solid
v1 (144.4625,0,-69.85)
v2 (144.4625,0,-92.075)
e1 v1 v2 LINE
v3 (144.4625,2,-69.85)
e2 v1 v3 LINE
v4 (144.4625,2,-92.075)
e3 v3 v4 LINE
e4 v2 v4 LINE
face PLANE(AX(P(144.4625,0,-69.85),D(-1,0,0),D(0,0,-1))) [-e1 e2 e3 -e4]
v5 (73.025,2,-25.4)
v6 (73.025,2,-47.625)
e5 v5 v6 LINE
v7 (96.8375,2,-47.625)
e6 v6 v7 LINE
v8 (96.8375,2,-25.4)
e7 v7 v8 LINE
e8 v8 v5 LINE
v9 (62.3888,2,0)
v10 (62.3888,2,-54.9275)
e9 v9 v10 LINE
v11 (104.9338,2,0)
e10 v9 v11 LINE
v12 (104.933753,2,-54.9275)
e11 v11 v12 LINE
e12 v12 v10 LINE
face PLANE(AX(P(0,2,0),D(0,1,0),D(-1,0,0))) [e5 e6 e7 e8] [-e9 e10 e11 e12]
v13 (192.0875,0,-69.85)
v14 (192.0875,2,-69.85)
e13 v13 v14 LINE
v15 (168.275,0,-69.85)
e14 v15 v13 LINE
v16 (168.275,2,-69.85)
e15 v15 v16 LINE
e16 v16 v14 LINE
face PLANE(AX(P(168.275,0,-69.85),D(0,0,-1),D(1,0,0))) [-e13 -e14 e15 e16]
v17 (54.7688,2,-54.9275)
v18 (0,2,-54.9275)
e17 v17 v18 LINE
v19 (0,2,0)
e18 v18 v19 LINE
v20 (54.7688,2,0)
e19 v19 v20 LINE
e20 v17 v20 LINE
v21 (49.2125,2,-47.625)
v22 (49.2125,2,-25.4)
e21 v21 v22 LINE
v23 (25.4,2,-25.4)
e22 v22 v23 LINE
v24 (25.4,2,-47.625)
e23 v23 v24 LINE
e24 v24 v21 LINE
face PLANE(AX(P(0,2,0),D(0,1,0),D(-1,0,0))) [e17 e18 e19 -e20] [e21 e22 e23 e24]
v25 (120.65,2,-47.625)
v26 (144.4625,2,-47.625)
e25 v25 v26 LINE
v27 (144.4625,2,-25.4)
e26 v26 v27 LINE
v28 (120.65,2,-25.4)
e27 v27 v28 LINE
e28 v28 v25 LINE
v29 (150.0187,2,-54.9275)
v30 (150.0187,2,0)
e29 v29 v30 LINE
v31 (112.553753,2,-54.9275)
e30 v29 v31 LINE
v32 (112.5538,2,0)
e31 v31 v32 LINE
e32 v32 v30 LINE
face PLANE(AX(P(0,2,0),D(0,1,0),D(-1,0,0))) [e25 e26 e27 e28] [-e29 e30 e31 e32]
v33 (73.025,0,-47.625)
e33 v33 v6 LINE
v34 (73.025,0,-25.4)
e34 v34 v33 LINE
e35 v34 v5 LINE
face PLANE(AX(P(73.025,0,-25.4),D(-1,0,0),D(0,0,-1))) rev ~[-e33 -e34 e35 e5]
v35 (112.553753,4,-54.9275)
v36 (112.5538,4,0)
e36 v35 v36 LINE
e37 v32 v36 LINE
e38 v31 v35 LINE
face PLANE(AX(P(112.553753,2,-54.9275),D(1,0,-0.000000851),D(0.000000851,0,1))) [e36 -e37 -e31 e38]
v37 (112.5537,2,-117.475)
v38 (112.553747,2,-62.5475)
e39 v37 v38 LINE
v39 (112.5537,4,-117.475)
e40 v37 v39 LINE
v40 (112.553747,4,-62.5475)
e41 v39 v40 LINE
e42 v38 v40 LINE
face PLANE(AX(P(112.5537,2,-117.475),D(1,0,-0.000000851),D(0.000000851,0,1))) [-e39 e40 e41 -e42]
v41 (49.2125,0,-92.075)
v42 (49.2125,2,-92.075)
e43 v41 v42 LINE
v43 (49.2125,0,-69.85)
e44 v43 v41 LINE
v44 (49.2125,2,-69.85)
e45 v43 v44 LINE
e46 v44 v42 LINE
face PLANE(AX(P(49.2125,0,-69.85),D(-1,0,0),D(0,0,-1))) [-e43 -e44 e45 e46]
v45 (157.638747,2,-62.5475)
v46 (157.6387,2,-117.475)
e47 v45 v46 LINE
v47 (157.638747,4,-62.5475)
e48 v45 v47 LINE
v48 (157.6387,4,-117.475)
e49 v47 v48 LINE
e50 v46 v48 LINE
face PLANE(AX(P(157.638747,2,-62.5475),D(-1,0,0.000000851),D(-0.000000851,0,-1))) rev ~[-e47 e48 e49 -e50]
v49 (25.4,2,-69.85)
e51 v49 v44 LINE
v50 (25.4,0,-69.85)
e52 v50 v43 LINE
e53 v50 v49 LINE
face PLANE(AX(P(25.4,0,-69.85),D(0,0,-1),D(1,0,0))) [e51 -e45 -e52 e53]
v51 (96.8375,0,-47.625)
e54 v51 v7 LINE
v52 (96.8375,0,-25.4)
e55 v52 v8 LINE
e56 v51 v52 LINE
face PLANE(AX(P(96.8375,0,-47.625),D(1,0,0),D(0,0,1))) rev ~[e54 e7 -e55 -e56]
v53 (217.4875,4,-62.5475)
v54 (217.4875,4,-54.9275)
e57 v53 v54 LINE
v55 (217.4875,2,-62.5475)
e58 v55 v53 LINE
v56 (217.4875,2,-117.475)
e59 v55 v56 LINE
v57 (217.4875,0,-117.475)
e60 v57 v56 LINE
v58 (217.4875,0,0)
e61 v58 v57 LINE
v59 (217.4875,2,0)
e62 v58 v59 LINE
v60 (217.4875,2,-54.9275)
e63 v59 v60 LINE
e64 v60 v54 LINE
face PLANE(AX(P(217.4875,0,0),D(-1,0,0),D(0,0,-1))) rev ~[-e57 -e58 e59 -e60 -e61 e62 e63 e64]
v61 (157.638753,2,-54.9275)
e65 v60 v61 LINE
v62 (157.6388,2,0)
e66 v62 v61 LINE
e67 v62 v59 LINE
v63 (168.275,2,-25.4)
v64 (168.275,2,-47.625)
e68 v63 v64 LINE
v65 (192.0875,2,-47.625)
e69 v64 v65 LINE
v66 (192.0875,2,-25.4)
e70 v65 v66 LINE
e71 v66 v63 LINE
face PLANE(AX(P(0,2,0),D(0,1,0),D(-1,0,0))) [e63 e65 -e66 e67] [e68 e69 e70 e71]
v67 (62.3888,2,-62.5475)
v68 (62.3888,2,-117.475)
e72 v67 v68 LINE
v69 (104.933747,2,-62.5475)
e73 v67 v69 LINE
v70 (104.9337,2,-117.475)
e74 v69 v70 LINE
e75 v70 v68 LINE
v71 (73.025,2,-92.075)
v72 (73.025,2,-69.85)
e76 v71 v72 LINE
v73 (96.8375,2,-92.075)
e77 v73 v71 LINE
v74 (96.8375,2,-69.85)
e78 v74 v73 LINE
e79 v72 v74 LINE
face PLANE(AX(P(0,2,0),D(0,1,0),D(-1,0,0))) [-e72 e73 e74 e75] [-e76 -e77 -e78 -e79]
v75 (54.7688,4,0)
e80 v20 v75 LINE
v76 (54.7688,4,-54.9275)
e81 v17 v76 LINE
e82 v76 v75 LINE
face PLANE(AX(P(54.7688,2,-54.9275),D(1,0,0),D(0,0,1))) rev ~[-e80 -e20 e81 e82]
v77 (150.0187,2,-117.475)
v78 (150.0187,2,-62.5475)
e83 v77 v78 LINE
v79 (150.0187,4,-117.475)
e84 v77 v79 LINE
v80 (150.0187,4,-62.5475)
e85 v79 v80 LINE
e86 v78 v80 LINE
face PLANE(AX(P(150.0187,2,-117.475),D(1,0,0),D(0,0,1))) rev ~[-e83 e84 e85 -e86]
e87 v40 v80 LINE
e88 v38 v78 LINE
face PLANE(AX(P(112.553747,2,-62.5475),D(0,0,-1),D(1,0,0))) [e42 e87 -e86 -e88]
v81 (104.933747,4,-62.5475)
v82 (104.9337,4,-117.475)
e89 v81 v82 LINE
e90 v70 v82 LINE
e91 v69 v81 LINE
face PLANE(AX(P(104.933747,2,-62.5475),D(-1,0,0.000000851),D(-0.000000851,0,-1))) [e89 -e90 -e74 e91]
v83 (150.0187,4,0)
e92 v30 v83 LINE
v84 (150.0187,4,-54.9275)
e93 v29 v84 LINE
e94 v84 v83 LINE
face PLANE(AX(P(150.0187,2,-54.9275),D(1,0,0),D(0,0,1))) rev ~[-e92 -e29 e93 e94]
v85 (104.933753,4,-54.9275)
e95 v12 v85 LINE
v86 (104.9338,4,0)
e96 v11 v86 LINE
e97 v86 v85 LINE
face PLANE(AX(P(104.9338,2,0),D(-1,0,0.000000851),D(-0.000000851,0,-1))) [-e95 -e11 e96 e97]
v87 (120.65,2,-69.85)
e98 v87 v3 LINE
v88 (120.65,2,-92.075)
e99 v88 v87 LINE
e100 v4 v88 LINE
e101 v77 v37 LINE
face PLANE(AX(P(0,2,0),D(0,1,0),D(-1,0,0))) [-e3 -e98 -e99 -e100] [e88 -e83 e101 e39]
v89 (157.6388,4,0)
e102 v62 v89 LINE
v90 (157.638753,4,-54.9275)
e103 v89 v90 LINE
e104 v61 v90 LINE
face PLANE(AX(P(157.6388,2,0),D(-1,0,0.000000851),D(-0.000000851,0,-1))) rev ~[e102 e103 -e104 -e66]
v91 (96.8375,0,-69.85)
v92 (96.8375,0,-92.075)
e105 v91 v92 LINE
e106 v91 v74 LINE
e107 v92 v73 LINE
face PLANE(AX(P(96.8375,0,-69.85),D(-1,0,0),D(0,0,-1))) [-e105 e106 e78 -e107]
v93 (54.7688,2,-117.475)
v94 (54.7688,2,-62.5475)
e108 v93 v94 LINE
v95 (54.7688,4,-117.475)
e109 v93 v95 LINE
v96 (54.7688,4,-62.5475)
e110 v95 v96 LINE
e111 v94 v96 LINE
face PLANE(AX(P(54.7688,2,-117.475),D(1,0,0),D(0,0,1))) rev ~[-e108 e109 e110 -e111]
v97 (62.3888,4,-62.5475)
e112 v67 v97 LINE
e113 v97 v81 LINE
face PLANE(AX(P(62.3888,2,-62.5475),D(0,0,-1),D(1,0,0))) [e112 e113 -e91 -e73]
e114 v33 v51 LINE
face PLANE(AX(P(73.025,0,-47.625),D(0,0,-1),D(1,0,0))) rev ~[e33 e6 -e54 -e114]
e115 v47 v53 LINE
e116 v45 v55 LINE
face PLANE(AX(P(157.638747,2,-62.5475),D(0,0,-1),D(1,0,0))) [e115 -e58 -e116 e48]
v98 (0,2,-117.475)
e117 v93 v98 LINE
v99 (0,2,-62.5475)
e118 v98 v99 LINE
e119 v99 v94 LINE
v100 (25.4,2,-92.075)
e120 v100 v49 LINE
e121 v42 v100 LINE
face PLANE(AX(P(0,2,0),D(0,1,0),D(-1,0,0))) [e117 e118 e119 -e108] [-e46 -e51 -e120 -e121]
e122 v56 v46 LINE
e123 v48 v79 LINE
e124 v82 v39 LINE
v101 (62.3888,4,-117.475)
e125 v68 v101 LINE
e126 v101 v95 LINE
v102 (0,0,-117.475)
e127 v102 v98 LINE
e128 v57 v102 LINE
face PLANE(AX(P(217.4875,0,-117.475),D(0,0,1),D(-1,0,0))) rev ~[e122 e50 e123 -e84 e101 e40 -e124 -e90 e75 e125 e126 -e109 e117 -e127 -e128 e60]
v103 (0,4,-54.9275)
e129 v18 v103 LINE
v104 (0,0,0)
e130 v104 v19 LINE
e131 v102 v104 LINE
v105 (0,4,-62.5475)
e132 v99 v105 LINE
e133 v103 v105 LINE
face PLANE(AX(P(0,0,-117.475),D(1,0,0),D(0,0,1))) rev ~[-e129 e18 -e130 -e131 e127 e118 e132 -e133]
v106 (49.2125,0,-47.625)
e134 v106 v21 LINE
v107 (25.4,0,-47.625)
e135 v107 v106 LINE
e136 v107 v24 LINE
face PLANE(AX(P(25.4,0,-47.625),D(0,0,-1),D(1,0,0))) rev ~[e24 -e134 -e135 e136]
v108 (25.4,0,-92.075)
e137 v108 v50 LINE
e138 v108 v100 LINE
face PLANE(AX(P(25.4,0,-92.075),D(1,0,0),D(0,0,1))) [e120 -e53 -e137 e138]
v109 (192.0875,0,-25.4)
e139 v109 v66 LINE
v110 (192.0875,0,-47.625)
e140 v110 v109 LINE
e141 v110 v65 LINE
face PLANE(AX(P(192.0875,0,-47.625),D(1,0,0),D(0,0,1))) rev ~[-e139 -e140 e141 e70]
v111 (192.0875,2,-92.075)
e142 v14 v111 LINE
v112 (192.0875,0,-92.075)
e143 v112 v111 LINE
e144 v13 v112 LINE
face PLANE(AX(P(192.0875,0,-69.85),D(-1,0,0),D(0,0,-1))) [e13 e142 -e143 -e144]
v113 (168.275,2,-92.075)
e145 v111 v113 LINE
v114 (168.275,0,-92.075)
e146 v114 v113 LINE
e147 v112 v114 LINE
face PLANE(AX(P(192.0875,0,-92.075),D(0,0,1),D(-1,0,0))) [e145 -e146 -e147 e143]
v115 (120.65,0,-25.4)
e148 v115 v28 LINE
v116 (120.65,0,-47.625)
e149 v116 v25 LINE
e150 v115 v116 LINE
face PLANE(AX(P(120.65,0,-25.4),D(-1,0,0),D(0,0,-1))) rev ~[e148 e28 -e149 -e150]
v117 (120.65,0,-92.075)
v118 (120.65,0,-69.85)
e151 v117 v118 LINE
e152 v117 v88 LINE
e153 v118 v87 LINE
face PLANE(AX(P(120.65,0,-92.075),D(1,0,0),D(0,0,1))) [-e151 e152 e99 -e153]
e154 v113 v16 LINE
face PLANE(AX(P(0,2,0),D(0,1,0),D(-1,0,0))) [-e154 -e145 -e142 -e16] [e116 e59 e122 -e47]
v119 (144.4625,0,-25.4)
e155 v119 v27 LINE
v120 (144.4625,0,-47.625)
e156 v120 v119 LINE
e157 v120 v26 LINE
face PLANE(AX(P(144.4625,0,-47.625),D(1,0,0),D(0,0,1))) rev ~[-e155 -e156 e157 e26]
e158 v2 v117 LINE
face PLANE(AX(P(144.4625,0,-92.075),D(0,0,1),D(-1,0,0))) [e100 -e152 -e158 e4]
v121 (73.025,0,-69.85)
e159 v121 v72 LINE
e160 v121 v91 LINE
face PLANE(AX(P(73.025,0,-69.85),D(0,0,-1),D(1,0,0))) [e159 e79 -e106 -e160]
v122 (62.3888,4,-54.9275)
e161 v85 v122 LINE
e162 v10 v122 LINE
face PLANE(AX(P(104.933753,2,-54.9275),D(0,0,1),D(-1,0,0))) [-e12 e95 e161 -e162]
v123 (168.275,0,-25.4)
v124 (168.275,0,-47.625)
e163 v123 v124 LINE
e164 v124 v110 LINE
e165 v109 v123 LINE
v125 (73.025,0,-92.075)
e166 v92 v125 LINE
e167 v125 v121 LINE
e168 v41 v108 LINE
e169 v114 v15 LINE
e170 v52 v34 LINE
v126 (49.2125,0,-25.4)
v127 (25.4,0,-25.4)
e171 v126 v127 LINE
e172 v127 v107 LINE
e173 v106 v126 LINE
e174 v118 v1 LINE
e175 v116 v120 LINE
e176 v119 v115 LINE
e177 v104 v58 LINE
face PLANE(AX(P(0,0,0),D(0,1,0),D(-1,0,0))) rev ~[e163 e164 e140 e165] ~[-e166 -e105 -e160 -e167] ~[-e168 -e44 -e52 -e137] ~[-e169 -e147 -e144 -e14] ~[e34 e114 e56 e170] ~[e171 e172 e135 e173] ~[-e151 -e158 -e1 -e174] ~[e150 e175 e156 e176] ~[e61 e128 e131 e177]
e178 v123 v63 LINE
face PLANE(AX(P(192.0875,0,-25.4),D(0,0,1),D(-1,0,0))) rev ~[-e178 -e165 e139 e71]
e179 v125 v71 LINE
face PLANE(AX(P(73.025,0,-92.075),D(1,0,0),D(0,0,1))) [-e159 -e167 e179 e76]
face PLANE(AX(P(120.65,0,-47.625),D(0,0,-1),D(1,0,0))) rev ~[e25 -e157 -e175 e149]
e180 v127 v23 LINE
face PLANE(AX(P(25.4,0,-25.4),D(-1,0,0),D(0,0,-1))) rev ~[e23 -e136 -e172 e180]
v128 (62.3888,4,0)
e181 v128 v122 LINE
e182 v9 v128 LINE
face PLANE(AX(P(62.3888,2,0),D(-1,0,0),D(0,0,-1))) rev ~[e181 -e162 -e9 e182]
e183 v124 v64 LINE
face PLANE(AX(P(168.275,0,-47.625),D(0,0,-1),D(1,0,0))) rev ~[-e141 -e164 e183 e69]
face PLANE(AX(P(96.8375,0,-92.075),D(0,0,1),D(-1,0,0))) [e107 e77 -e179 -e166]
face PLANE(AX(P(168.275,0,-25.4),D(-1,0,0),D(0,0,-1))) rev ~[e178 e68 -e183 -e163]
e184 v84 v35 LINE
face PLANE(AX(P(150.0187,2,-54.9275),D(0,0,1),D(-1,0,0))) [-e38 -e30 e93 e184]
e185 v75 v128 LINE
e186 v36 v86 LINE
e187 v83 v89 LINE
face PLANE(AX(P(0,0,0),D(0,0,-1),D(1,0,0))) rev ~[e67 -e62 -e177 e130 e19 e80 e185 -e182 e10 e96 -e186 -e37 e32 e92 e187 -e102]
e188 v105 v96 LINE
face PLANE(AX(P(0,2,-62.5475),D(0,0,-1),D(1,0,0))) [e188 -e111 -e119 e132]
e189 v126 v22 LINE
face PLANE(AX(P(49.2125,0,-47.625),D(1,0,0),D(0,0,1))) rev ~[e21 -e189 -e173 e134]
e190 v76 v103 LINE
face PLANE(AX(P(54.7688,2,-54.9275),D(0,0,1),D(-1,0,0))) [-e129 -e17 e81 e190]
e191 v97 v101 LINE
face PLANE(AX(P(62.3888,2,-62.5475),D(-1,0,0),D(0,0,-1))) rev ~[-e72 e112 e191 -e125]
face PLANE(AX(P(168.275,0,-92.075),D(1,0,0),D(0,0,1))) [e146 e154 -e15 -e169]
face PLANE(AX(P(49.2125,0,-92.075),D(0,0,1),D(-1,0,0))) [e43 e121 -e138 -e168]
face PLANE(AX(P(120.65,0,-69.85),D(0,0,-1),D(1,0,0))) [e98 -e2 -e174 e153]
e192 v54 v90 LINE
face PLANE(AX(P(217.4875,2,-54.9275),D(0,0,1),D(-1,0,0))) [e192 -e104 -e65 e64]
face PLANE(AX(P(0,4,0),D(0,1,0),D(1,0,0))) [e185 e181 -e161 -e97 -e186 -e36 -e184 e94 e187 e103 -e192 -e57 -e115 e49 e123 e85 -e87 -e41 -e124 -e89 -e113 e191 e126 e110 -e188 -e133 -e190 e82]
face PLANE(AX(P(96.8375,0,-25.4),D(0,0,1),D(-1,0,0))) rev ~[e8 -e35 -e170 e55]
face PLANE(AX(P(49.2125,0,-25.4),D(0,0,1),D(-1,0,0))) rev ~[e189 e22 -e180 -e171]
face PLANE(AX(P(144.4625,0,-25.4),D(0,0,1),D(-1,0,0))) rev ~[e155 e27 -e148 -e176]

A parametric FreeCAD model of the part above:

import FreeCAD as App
import Part
import Sketcher

V = App.Vector
Q = App.Units.Quantity


def add_polygon(sketch, points):
    """Adds a closed chain of lines whose ends are joined by coincident constraints."""
    first, n = sketch.GeometryCount, len(points)
    for a, b in zip(points, points[1:] + points[:1]):
        sketch.addGeometry(Part.LineSegment(App.Vector(*a, 0), App.Vector(*b, 0)), False)
    for i in range(n):
        sketch.addConstraint(Sketcher.Constraint("Coincident", first + i, 2, first + (i + 1) % n, 1))

doc = App.newDocument("Part")
body = doc.addObject("PartDesign::Body", "Body")

sketch1 = doc.addObject("Sketcher::SketchObject", "Sketch")
body.addObject(sketch1)
sketch1.AttachmentSupport = (doc.XZ_Plane, [""])
sketch1.MapMode = "FlatFace"
add_polygon(sketch1, [(0, -117), (0, 0), (217, 0), (217, -117)])
add_polygon(sketch1, [(168, -92), (192, -92), (192, -70), (168, -70)])
add_polygon(sketch1, [(121, -92), (144, -92), (144, -70), (121, -70)])
add_polygon(sketch1, [(73, -92), (97, -92), (97, -70), (73, -70)])
add_polygon(sketch1, [(25, -92), (49, -92), (49, -70), (25, -70)])
add_polygon(sketch1, [(168, -25), (168, -48), (192, -48), (192, -25)])
add_polygon(sketch1, [(121, -25), (121, -48), (144, -48), (144, -25)])
add_polygon(sketch1, [(73, -25), (73, -48), (97, -48), (97, -25)])
add_polygon(sketch1, [(25, -25), (25, -48), (49, -48), (49, -25)])
sketch1.addConstraint(Sketcher.Constraint("Vertical", 0))
sketch1.addConstraint(Sketcher.Constraint("Horizontal", 1))
sketch1.addConstraint(Sketcher.Constraint("Vertical", 2))
sketch1.addConstraint(Sketcher.Constraint("Horizontal", 3))
sketch1.addConstraint(Sketcher.Constraint("Horizontal", 4))
sketch1.addConstraint(Sketcher.Constraint("Vertical", 5))
sketch1.addConstraint(Sketcher.Constraint("Horizontal", 6))
sketch1.addConstraint(Sketcher.Constraint("Vertical", 7))
sketch1.addConstraint(Sketcher.Constraint("Horizontal", 8))
sketch1.addConstraint(Sketcher.Constraint("Vertical", 9))
sketch1.addConstraint(Sketcher.Constraint("Horizontal", 10))
sketch1.addConstraint(Sketcher.Constraint("Vertical", 11))
sketch1.addConstraint(Sketcher.Constraint("Horizontal", 12))
sketch1.addConstraint(Sketcher.Constraint("Vertical", 13))
sketch1.addConstraint(Sketcher.Constraint("Horizontal", 14))
sketch1.addConstraint(Sketcher.Constraint("Vertical", 15))
sketch1.addConstraint(Sketcher.Constraint("Horizontal", 16))
sketch1.addConstraint(Sketcher.Constraint("Vertical", 17))
sketch1.addConstraint(Sketcher.Constraint("Horizontal", 18))
sketch1.addConstraint(Sketcher.Constraint("Vertical", 19))
sketch1.addConstraint(Sketcher.Constraint("Vertical", 20))
sketch1.addConstraint(Sketcher.Constraint("Horizontal", 21))
sketch1.addConstraint(Sketcher.Constraint("Vertical", 22))
sketch1.addConstraint(Sketcher.Constraint("Horizontal", 23))
sketch1.addConstraint(Sketcher.Constraint("Vertical", 24))
sketch1.addConstraint(Sketcher.Constraint("Horizontal", 25))
sketch1.addConstraint(Sketcher.Constraint("Vertical", 26))
sketch1.addConstraint(Sketcher.Constraint("Horizontal", 27))
sketch1.addConstraint(Sketcher.Constraint("Vertical", 28))
sketch1.addConstraint(Sketcher.Constraint("Horizontal", 29))
sketch1.addConstraint(Sketcher.Constraint("Vertical", 30))
sketch1.addConstraint(Sketcher.Constraint("Horizontal", 31))
sketch1.addConstraint(Sketcher.Constraint("Vertical", 32))
sketch1.addConstraint(Sketcher.Constraint("Horizontal", 33))
sketch1.addConstraint(Sketcher.Constraint("Vertical", 34))
sketch1.addConstraint(Sketcher.Constraint("Horizontal", 35))
sketch1.addConstraint(Sketcher.Constraint("Coincident", 0, 2, -1, 1))
sketch1.addConstraint(Sketcher.Constraint("Horizontal", 7, 2, 8, 2))
sketch1.addConstraint(Sketcher.Constraint("Horizontal", 6, 2, 9, 2))
sketch1.addConstraint(Sketcher.Constraint("Horizontal", 11, 2, 12, 2))
sketch1.addConstraint(Sketcher.Constraint("Horizontal", 10, 2, 13, 2))
sketch1.addConstraint(Sketcher.Constraint("Horizontal", 15, 2, 16, 2))
sketch1.addConstraint(Sketcher.Constraint("Horizontal", 14, 2, 17, 2))
sketch1.addConstraint(Sketcher.Constraint("Horizontal", 21, 2, 24, 2))
sketch1.addConstraint(Sketcher.Constraint("Horizontal", 23, 2, 26, 2))
sketch1.addConstraint(Sketcher.Constraint("Horizontal", 25, 2, 28, 2))
sketch1.addConstraint(Sketcher.Constraint("Horizontal", 27, 2, 30, 2))
sketch1.addConstraint(Sketcher.Constraint("Horizontal", 29, 2, 32, 2))
sketch1.addConstraint(Sketcher.Constraint("Horizontal", 31, 2, 34, 2))
sketch1.addConstraint(Sketcher.Constraint("Vertical", 7, 2, 20, 2))
sketch1.addConstraint(Sketcher.Constraint("Vertical", 5, 2, 21, 2))
sketch1.addConstraint(Sketcher.Constraint("Vertical", 11, 2, 24, 2))
sketch1.addConstraint(Sketcher.Constraint("Vertical", 9, 2, 25, 2))
sketch1.addConstraint(Sketcher.Constraint("Vertical", 15, 2, 28, 2))
sketch1.addConstraint(Sketcher.Constraint("Vertical", 13, 2, 29, 2))
sketch1.addConstraint(Sketcher.Constraint("Vertical", 19, 2, 32, 2))
sketch1.addConstraint(Sketcher.Constraint("Vertical", 17, 2, 33, 2))
sketch1.addConstraint(Sketcher.Constraint("Equal", 6, 8))
sketch1.addConstraint(Sketcher.Constraint("Equal", 10, 12))
sketch1.addConstraint(Sketcher.Constraint("Equal", 14, 16))
sketch1.addConstraint(Sketcher.Constraint("Equal", 19, 20))
sketch1.addConstraint(Sketcher.Constraint("DistanceX", -1, 1, 18, 2, Q("1 in")))
sketch1.addConstraint(Sketcher.Constraint("DistanceY", 22, 2, -1, 1, Q("1 in")))
sketch1.addConstraint(Sketcher.Constraint("DistanceX", 4, 2, 2, 2, Q("1 in")))
sketch1.addConstraint(Sketcher.Constraint("DistanceY", 2, 2, 4, 2, Q("1 in")))
sketch1.addConstraint(Sketcher.Constraint("DistanceX", 4, 1, 4, 2, Q("0.9375 in")))
sketch1.addConstraint(Sketcher.Constraint("DistanceY", 5, 1, 5, 2, Q("0.875 in")))
sketch1.addConstraint(Sketcher.Constraint("DistanceY", 7, 2, 20, 2, Q("1.75 in")))
sketch1.addConstraint(Sketcher.Constraint("DistanceX", 8, 2, 7, 2, Q("0.9375 in")))
sketch1.addConstraint(Sketcher.Constraint("DistanceX", 12, 2, 11, 2, Q("0.9375 in")))
sketch1.addConstraint(Sketcher.Constraint("DistanceX", 16, 2, 15, 2, Q("0.9375 in")))
pad1 = doc.addObject("PartDesign::Pad", "Pad")
body.addObject(pad1)
pad1.Profile = sketch1
pad1.Length = 2
pad1.Reversed = True

sketch2 = doc.addObject("Sketcher::SketchObject", "Sketch001")
body.addObject(sketch2)
sketch2.AttachmentSupport = (doc.XZ_Plane, [""])
sketch2.MapMode = "FlatFace"
sketch2.AttachmentOffset = App.Placement(V(0, 0, -2), App.Rotation())
add_polygon(sketch2, [(55, -63), (0, -63), (0, -55), (55, -55), (55, 0), (62, 0), (62, -55), (105, -55), (105, 0), (113, 0), (113, -55), (150, -55), (150, 0), (158, 0), (158, -55), (217, -55), (217, -63), (158, -63), (158, -117), (150, -117), (150, -63), (113, -63), (113, -117), (105, -117), (105, -63), (62, -63), (62, -117), (55, -117)])
sketch2.addConstraint(Sketcher.Constraint("Horizontal", 0))
sketch2.addConstraint(Sketcher.Constraint("Vertical", 1))
sketch2.addConstraint(Sketcher.Constraint("Horizontal", 2))
sketch2.addConstraint(Sketcher.Constraint("Vertical", 3))
sketch2.addConstraint(Sketcher.Constraint("Horizontal", 4))
sketch2.addConstraint(Sketcher.Constraint("Vertical", 5))
sketch2.addConstraint(Sketcher.Constraint("Horizontal", 6))
sketch2.addConstraint(Sketcher.Constraint("Vertical", 7))
sketch2.addConstraint(Sketcher.Constraint("Horizontal", 8))
sketch2.addConstraint(Sketcher.Constraint("Vertical", 9))
sketch2.addConstraint(Sketcher.Constraint("Horizontal", 10))
sketch2.addConstraint(Sketcher.Constraint("Vertical", 11))
sketch2.addConstraint(Sketcher.Constraint("Horizontal", 12))
sketch2.addConstraint(Sketcher.Constraint("Vertical", 13))
sketch2.addConstraint(Sketcher.Constraint("Horizontal", 14))
sketch2.addConstraint(Sketcher.Constraint("Vertical", 15))
sketch2.addConstraint(Sketcher.Constraint("Horizontal", 16))
sketch2.addConstraint(Sketcher.Constraint("Vertical", 17))
sketch2.addConstraint(Sketcher.Constraint("Horizontal", 18))
sketch2.addConstraint(Sketcher.Constraint("Vertical", 19))
sketch2.addConstraint(Sketcher.Constraint("Horizontal", 20))
sketch2.addConstraint(Sketcher.Constraint("Vertical", 21))
sketch2.addConstraint(Sketcher.Constraint("Horizontal", 22))
sketch2.addConstraint(Sketcher.Constraint("Vertical", 23))
sketch2.addConstraint(Sketcher.Constraint("Horizontal", 24))
sketch2.addConstraint(Sketcher.Constraint("Vertical", 25))
sketch2.addConstraint(Sketcher.Constraint("Horizontal", 26))
sketch2.addConstraint(Sketcher.Constraint("Vertical", 27))
sketch2.addConstraint(Sketcher.Constraint("PointOnObject", 0, 2, -2))
sketch2.addConstraint(Sketcher.Constraint("PointOnObject", 3, 2, -1))
sketch2.addConstraint(Sketcher.Constraint("PointOnObject", 7, 2, -1))
sketch2.addConstraint(Sketcher.Constraint("PointOnObject", 11, 2, -1))
sketch2.addConstraint(Sketcher.Constraint("Horizontal", 2, 2, 5, 2))
sketch2.addConstraint(Sketcher.Constraint("Horizontal", 6, 2, 9, 2))
sketch2.addConstraint(Sketcher.Constraint("Horizontal", 10, 2, 13, 2))
sketch2.addConstraint(Sketcher.Constraint("Horizontal", 0, 2, 15, 2))
sketch2.addConstraint(Sketcher.Constraint("Horizontal", 16, 2, 19, 2))
sketch2.addConstraint(Sketcher.Constraint("Horizontal", 18, 2, 21, 2))
sketch2.addConstraint(Sketcher.Constraint("Horizontal", 20, 2, 23, 2))
sketch2.addConstraint(Sketcher.Constraint("Horizontal", 22, 2, 25, 2))
sketch2.addConstraint(Sketcher.Constraint("Vertical", 13, 2, 16, 2))
sketch2.addConstraint(Sketcher.Constraint("Vertical", 11, 2, 18, 2))
sketch2.addConstraint(Sketcher.Constraint("Vertical", 9, 2, 20, 2))
sketch2.addConstraint(Sketcher.Constraint("Vertical", 7, 2, 22, 2))
sketch2.addConstraint(Sketcher.Constraint("Vertical", 5, 2, 24, 2))
sketch2.addConstraint(Sketcher.Constraint("Vertical", 3, 2, 26, 2))
sketch2.addConstraint(Sketcher.Constraint("Equal", 4, 8))
sketch2.addConstraint(Sketcher.Constraint("Equal", 8, 12))
sketch2.addConstraint(Sketcher.Constraint("Equal", 26, 1))
sketch2.addConstraint(Sketcher.Constraint("Equal", 13, 17))
sketch2.addConstraint(Sketcher.Constraint("DistanceX", 4, 1, 4, 2, Q("0.3 in")))
sketch2.addConstraint(Sketcher.Constraint("DistanceX", 0, 2, 0, 1, Q("2.156252 in")))
sketch2.addConstraint(Sketcher.Constraint("DistanceX", 6, 1, 6, 2, Q("1.675 in")))
sketch2.addConstraint(Sketcher.Constraint("DistanceX", 10, 1, 10, 2, Q("1.475 in")))
sketch2.addConstraint(Sketcher.Constraint("DistanceY", 3, 1, 3, 2, Q("2.1625 in")))
sketch2.addConstraint(Sketcher.Constraint("DistanceX", -1, 1, 14, 2, Q("8.5625 in")))
pad2 = doc.addObject("PartDesign::Pad", "Pad001")
body.addObject(pad2)
pad2.Profile = sketch2
pad2.Length = 2
pad2.Reversed = True

doc.recompute()
